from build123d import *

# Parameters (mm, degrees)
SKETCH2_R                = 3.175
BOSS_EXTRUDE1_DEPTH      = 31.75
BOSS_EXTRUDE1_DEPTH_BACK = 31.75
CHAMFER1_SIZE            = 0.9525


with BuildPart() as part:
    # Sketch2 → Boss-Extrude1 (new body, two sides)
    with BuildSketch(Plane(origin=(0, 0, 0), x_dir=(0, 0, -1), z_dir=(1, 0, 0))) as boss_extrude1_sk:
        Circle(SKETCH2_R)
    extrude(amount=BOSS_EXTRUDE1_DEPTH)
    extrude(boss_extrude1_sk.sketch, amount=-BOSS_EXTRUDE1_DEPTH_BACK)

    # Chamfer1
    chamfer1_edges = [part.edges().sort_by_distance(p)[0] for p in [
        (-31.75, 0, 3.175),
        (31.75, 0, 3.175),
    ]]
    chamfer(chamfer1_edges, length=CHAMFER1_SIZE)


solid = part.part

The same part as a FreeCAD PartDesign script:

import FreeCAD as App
import Part
import Sketcher
Q = App.Units.Quantity


def edges_at(feature, points):
    """Names of the edges that pass closest to the given points."""
    edges = feature.Shape.Edges
    near = lambda p: min(range(len(edges)), key=lambda i: edges[i].distToShape(Part.Vertex(*p))[0])
    return sorted({f"Edge{near(p) + 1}" for p in points})

doc = App.newDocument("Part")
body = doc.addObject("PartDesign::Body", "Body")

# Sketch on YZ plane
sketch1 = doc.addObject("Sketcher::SketchObject", "Sketch")
body.addObject(sketch1)
sketch1.AttachmentSupport = (doc.YZ_Plane, [""])
sketch1.MapMode = "FlatFace"
sketch1.addGeometry(Part.Circle(App.Vector(0, 0, 0), App.Vector(0, 0, 1), 3.2), False)
sketch1.addConstraint([
    Sketcher.Constraint("Coincident", 0, 3, -1, 1),
    Sketcher.Constraint("Diameter", 0, Q("0.25 in")),
])
pad1 = doc.addObject("PartDesign::Pad", "Pad")
body.addObject(pad1)
pad1.Profile = sketch1
pad1.Type = "TwoLengths"
pad1.Length = Q("1.25 in")
pad1.Length2 = Q("1.25 in")
doc.recompute()

chamfer = doc.addObject("PartDesign::Chamfer", "Chamfer")
body.addObject(chamfer)
chamfer.Base = (pad1, edges_at(pad1, [(-31.75, 0, 3.175), (31.75, 0, 3.175)]))
chamfer.Size = Q("0.0375 in")

doc.recompute()
